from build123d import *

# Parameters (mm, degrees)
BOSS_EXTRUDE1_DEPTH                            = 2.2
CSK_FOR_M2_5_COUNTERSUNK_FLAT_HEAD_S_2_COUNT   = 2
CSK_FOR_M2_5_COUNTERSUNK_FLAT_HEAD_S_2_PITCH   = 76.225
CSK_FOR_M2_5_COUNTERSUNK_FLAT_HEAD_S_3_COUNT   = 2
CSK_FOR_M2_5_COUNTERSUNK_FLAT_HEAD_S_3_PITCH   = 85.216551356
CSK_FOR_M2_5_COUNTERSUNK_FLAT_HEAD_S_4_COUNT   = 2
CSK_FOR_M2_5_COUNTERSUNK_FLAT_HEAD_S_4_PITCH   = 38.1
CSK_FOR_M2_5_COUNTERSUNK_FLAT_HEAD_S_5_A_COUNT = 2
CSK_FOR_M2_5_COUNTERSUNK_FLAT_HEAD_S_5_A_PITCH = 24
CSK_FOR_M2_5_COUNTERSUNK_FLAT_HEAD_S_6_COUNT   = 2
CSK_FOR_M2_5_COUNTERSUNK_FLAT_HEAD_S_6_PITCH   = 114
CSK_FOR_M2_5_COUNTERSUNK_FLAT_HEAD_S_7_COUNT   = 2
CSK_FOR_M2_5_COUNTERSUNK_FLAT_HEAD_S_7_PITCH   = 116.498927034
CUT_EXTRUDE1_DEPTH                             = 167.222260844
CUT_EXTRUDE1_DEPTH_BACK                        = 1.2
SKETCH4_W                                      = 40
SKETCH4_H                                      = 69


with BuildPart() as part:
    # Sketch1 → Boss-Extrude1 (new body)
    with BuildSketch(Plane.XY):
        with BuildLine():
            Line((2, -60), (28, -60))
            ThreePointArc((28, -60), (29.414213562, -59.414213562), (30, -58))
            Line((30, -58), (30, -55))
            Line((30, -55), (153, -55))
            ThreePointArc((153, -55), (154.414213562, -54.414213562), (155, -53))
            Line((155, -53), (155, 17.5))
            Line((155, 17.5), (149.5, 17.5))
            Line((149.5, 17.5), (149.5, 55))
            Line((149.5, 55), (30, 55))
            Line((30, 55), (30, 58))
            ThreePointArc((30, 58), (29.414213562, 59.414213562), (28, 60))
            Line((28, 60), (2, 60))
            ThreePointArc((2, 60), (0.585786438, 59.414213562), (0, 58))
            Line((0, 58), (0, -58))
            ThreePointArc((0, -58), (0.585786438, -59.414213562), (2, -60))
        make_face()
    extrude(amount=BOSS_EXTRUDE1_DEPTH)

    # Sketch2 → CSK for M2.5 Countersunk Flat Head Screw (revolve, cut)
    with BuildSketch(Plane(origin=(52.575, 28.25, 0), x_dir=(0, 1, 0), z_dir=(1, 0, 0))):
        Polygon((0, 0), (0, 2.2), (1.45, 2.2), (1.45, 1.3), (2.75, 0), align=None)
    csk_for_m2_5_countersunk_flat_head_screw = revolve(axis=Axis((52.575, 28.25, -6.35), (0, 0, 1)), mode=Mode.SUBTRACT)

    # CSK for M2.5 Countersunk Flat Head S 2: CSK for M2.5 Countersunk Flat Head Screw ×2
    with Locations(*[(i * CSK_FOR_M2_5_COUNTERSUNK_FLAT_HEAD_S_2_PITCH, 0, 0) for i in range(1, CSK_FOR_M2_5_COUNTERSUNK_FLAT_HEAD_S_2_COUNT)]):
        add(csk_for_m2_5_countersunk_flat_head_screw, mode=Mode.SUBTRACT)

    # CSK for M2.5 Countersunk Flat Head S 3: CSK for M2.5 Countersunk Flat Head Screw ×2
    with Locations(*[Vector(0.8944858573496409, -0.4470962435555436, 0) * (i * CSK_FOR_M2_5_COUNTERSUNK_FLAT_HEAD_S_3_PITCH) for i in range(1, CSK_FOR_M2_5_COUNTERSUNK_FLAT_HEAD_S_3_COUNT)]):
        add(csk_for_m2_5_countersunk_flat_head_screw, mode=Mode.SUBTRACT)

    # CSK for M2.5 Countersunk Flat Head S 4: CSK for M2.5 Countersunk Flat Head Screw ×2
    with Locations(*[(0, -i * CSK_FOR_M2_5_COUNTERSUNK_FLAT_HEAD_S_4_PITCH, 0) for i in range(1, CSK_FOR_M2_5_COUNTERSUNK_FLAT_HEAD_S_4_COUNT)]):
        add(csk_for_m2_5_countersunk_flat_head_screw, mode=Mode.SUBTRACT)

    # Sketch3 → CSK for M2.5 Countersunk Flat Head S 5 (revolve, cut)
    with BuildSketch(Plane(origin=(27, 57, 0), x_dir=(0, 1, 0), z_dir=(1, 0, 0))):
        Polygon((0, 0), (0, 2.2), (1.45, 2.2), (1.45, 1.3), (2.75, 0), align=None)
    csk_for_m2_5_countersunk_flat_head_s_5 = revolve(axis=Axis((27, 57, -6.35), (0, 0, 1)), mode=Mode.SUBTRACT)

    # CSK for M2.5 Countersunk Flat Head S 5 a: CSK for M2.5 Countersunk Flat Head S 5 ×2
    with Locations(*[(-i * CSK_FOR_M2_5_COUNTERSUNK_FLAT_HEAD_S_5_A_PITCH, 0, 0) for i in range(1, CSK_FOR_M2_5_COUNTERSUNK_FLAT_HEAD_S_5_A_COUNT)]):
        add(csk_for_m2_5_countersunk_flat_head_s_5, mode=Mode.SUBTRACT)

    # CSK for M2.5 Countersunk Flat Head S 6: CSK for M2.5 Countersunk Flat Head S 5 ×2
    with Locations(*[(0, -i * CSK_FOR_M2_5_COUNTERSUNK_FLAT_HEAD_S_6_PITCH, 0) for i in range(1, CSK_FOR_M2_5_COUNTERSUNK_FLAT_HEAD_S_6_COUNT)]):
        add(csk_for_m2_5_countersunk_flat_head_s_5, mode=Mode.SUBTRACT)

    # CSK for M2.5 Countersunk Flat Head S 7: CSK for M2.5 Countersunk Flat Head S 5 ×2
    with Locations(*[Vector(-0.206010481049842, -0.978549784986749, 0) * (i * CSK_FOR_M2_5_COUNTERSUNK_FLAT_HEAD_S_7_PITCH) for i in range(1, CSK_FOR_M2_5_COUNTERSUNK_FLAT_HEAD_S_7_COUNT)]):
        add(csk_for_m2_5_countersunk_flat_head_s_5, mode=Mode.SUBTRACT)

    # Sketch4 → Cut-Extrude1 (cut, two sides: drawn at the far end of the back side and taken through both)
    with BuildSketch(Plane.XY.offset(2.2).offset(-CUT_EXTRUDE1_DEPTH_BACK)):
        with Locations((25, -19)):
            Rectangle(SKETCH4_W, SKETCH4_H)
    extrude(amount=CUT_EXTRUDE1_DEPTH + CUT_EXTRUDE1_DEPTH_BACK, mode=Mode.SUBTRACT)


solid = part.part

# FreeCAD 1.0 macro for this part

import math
import FreeCAD as App
import Part
import Sketcher

V = App.Vector
Q = App.Units.Quantity

doc = App.newDocument("Part")
body = doc.addObject("PartDesign::Body", "Body")

# Sketch on XY plane
sketch1 = doc.addObject("Sketcher::SketchObject", "Sketch")
body.addObject(sketch1)
sketch1.AttachmentSupport = (doc.XY_Plane, [""])
sketch1.MapMode = "FlatFace"
sketch1.addGeometry([
    Part.LineSegment(V(2, -60, 0), V(28, -60, 0)),  # 0
    Part.ArcOfCircle(Part.Circle(V(28, -58, 0), V(0, 0, 1), 2), math.radians(-90), math.radians(0)),  # 1
    Part.LineSegment(V(30, -58, 0), V(30, -55, 0)),  # 2
    Part.LineSegment(V(30, -55, 0), V(153, -55, 0)),  # 3
    Part.ArcOfCircle(Part.Circle(V(153, -53, 0), V(0, 0, 1), 2), math.radians(-90), math.radians(0)),  # 4
    Part.LineSegment(V(155, -53, 0), V(155, 17.5, 0)),  # 5
    Part.LineSegment(V(155, 17.5, 0), V(149.5, 17.5, 0)),  # 6
    Part.LineSegment(V(149.5, 17.5, 0), V(149.5, 55, 0)),  # 7
    Part.LineSegment(V(149.5, 55, 0), V(30, 55, 0)),  # 8
    Part.LineSegment(V(30, 55, 0), V(30, 58, 0)),  # 9
    Part.ArcOfCircle(Part.Circle(V(28, 58, 0), V(0, 0, 1), 2), math.radians(0), math.radians(90)),  # 10
    Part.LineSegment(V(28, 60, 0), V(2, 60, 0)),  # 11
    Part.ArcOfCircle(Part.Circle(V(2, 58, 0), V(0, 0, 1), 2), math.radians(90), math.radians(180)),  # 12
    Part.LineSegment(V(0, 58, 0), V(0, -58, 0)),  # 13
    Part.ArcOfCircle(Part.Circle(V(2, -58, 0), V(0, 0, 1), 2), math.radians(-180), math.radians(-90)),  # 14
], False)
sketch1.addConstraint([
    Sketcher.Constraint("Tangent", 0, 2, 1, 1),
    Sketcher.Constraint("Tangent", 1, 2, 2, 1),
    Sketcher.Constraint("Coincident", 2, 2, 3, 1),
    Sketcher.Constraint("Tangent", 3, 2, 4, 1),
    Sketcher.Constraint("Tangent", 4, 2, 5, 1),
    Sketcher.Constraint("Coincident", 5, 2, 6, 1),
    Sketcher.Constraint("Coincident", 6, 2, 7, 1),
    Sketcher.Constraint("Coincident", 7, 2, 8, 1),
    Sketcher.Constraint("Coincident", 8, 2, 9, 1),
    Sketcher.Constraint("Tangent", 9, 2, 10, 1),
    Sketcher.Constraint("Tangent", 10, 2, 11, 1),
    Sketcher.Constraint("Tangent", 11, 2, 12, 1),
    Sketcher.Constraint("Tangent", 12, 2, 13, 1),
    Sketcher.Constraint("Tangent", 13, 2, 14, 1),
    Sketcher.Constraint("Tangent", 14, 2, 0, 1),
    Sketcher.Constraint("Horizontal", 0),
    Sketcher.Constraint("Vertical", 2),
    Sketcher.Constraint("Horizontal", 3),
    Sketcher.Constraint("Vertical", 5),
    Sketcher.Constraint("Horizontal", 6),
    Sketcher.Constraint("Vertical", 7),
    Sketcher.Constraint("Horizontal", 8),
    Sketcher.Constraint("Vertical", 9),
    Sketcher.Constraint("Horizontal", 11),
    Sketcher.Constraint("Vertical", 13),
    Sketcher.Constraint("Equal", 1, 4),
    Sketcher.Constraint("Equal", 4, 10),
    Sketcher.Constraint("Equal", 10, 12),
    Sketcher.Constraint("Equal", 12, 14),
    Sketcher.Constraint("Symmetric", 12, 2, 13, 2, -1, 1),
    Sketcher.Constraint("Symmetric", 2, 2, 8, 2, -1),
    Sketcher.Constraint("Radius", 1, Q("2 mm")),
    Sketcher.Constraint("DistanceX", 0, 1, 0, 2, Q("26 mm")),
    Sketcher.Constraint("DistanceX", 3, 1, 3, 2, Q("123 mm")),
    Sketcher.Constraint("DistanceY", 2, 1, 2, 2, Q("3 mm")),
    Sketcher.Constraint("DistanceY", 13, 2, 13, 1, Q("116 mm")),
    Sketcher.Constraint("DistanceX", 6, 2, 6, 1, Q("5.5 mm")),
    Sketcher.Constraint("DistanceY", 5, 1, 5, 2, Q("70.5 mm")),
])
pad1 = doc.addObject("PartDesign::Pad", "Pad")
body.addObject(pad1)
pad1.Profile = sketch1
pad1.Length = 2.2

# Sketch on YZ plane
sketch2 = doc.addObject("Sketcher::SketchObject", "Sketch001")
body.addObject(sketch2)
sketch2.AttachmentSupport = (doc.YZ_Plane, [""])
sketch2.MapMode = "FlatFace"
sketch2.AttachmentOffset = App.Placement(V(0, 0, 52.575), App.Rotation())
sketch2.addGeometry([
    Part.LineSegment(V(28.2, 2.2, 0), V(28.2, 0, 0)),  # 0
    Part.LineSegment(V(28.2, 0, 0), V(31, 0, 0)),  # 1
    Part.LineSegment(V(31, 0, 0), V(29.7, 1.3, 0)),  # 2
    Part.LineSegment(V(29.7, 1.3, 0), V(29.7, 2.2, 0)),  # 3
    Part.LineSegment(V(29.7, 2.2, 0), V(28.2, 2.2, 0)),  # 4
], False)
sketch2.addGeometry(Part.LineSegment(V(28.2, 0, 0), V(28.2, 2.2, 0)), True)  # axis
sketch2.addConstraint([
    Sketcher.Constraint("Coincident", 0, 2, 1, 1),
    Sketcher.Constraint("Coincident", 1, 2, 2, 1),
    Sketcher.Constraint("Coincident", 2, 2, 3, 1),
    Sketcher.Constraint("Coincident", 3, 2, 4, 1),
    Sketcher.Constraint("Coincident", 4, 2, 0, 1),
    Sketcher.Constraint("Vertical", 0),
    Sketcher.Constraint("Horizontal", 1),
    Sketcher.Constraint("Vertical", 3),
    Sketcher.Constraint("Horizontal", 4),
    Sketcher.Constraint("Vertical", 5),
    Sketcher.Constraint("Coincident", 5, 1, 0, 2),
    Sketcher.Constraint("PointOnObject", 0, 2, -1),
    Sketcher.Constraint("Horizontal", 3, 2, 5, 2),
    Sketcher.Constraint("Angle", 2, Q("135 deg")),
    Sketcher.Constraint("DistanceY", 0, 2, 0, 1, Q("2.2 mm")),
    Sketcher.Constraint("DistanceY", 3, 1, 3, 2, Q("0.9 mm")),
    Sketcher.Constraint("DistanceX", -1, 1, 1, 2, Q("31 mm")),
    Sketcher.Constraint("DistanceX", 1, 1, 1, 2, Q("2.75 mm")),
])
groove = doc.addObject("PartDesign::Groove", "Groove")
body.addObject(groove)
groove.Profile = sketch2
groove.ReferenceAxis = (sketch2, ["Axis0"])
groove.Angle = 360
doc.recompute()

linearpattern = doc.addObject("PartDesign::LinearPattern", "LinearPattern")
body.addObject(linearpattern)
linearpattern.Originals = [groove]
linearpattern.Direction = (doc.X_Axis, [""])
linearpattern.Mode = "offset"
linearpattern.Offset = 76.225
linearpattern.Occurrences = 2
body.Tip = linearpattern
doc.recompute()

datumline = doc.addObject("PartDesign::Line", "DatumLine")
body.addObject(datumline)
datumline.Placement = App.Placement(V(0, 0, 0), App.Rotation(V(0, 0, 1), V(0.894485857, -0.447096244, 0)))
linearpattern2 = doc.addObject("PartDesign::LinearPattern", "LinearPattern001")
body.addObject(linearpattern2)
linearpattern2.Originals = [groove]
linearpattern2.Direction = (datumline, [""])
linearpattern2.Mode = "offset"
linearpattern2.Offset = 85.216551
linearpattern2.Occurrences = 2
body.Tip = linearpattern2
doc.recompute()

linearpattern3 = doc.addObject("PartDesign::LinearPattern", "LinearPattern002")
body.addObject(linearpattern3)
linearpattern3.Originals = [groove]
linearpattern3.Direction = (doc.Y_Axis, [""])
linearpattern3.Mode = "offset"
linearpattern3.Offset = 38.1
linearpattern3.Occurrences = 2
linearpattern3.Reversed = True
body.Tip = linearpattern3

# Sketch on YZ plane
sketch3 = doc.addObject("Sketcher::SketchObject", "Sketch002")
body.addObject(sketch3)
sketch3.AttachmentSupport = (doc.YZ_Plane, [""])
sketch3.MapMode = "FlatFace"
sketch3.AttachmentOffset = App.Placement(V(0, 0, 27), App.Rotation())
sketch3.addGeometry([
    Part.LineSegment(V(57, 2.2, 0), V(57, 0, 0)),  # 0
    Part.LineSegment(V(57, 0, 0), V(59.8, 0, 0)),  # 1
    Part.LineSegment(V(59.8, 0, 0), V(58.5, 1.3, 0)),  # 2
    Part.LineSegment(V(58.5, 1.3, 0), V(58.5, 2.2, 0)),  # 3
    Part.LineSegment(V(58.5, 2.2, 0), V(57, 2.2, 0)),  # 4
], False)
sketch3.addGeometry(Part.LineSegment(V(57, 0, 0), V(57, 2.2, 0)), True)  # axis
sketch3.addConstraint([
    Sketcher.Constraint("Coincident", 0, 2, 1, 1),
    Sketcher.Constraint("Coincident", 1, 2, 2, 1),
    Sketcher.Constraint("Coincident", 2, 2, 3, 1),
    Sketcher.Constraint("Coincident", 3, 2, 4, 1),
    Sketcher.Constraint("Coincident", 4, 2, 0, 1),
    Sketcher.Constraint("Vertical", 0),
    Sketcher.Constraint("Horizontal", 1),
    Sketcher.Constraint("Vertical", 3),
    Sketcher.Constraint("Horizontal", 4),
    Sketcher.Constraint("Vertical", 5),
    Sketcher.Constraint("Coincident", 5, 1, 0, 2),
    Sketcher.Constraint("PointOnObject", 0, 2, -1),
    Sketcher.Constraint("Horizontal", 3, 2, 5, 2),
    Sketcher.Constraint("Angle", 2, Q("135 deg")),
    Sketcher.Constraint("DistanceY", 0, 2, 0, 1, Q("2.2 mm")),
    Sketcher.Constraint("DistanceY", 3, 1, 3, 2, Q("0.9 mm")),
    Sketcher.Constraint("DistanceX", -1, 1, 0, 2, Q("57 mm")),
    Sketcher.Constraint("DistanceX", 1, 1, 1, 2, Q("2.75 mm")),
])
groove2 = doc.addObject("PartDesign::Groove", "Groove001")
body.addObject(groove2)
groove2.Profile = sketch3
groove2.ReferenceAxis = (sketch3, ["Axis0"])
groove2.Angle = 360
doc.recompute()

linearpattern4 = doc.addObject("PartDesign::LinearPattern", "LinearPattern003")
body.addObject(linearpattern4)
linearpattern4.Originals = [groove2]
linearpattern4.Direction = (doc.X_Axis, [""])
linearpattern4.Mode = "offset"
linearpattern4.Offset = 24
linearpattern4.Occurrences = 2
linearpattern4.Reversed = True
body.Tip = linearpattern4
doc.recompute()

linearpattern5 = doc.addObject("PartDesign::LinearPattern", "LinearPattern004")
body.addObject(linearpattern5)
linearpattern5.Originals = [groove2]
linearpattern5.Direction = (doc.Y_Axis, [""])
linearpattern5.Mode = "offset"
linearpattern5.Offset = 114
linearpattern5.Occurrences = 2
linearpattern5.Reversed = True
body.Tip = linearpattern5
doc.recompute()

datumline2 = doc.addObject("PartDesign::Line", "DatumLine001")
body.addObject(datumline2)
datumline2.Placement = App.Placement(V(0, 0, 0), App.Rotation(V(0, 0, 1), V(-0.206010481, -0.978549785, 0)))
linearpattern6 = doc.addObject("PartDesign::LinearPattern", "LinearPattern005")
body.addObject(linearpattern6)
linearpattern6.Originals = [groove2]
linearpattern6.Direction = (datumline2, [""])
linearpattern6.Mode = "offset"
linearpattern6.Offset = 116.498927
linearpattern6.Occurrences = 2
body.Tip = linearpattern6

# Sketch on XY plane
sketch4 = doc.addObject("Sketcher::SketchObject", "Sketch003")
body.addObject(sketch4)
sketch4.AttachmentSupport = (doc.XY_Plane, [""])
sketch4.MapMode = "FlatFace"
sketch4.AttachmentOffset = App.Placement(V(0, 0, 2.2), App.Rotation())
sketch4.addGeometry([
    Part.LineSegment(V(5, 16, 0), V(5, -54, 0)),
    Part.LineSegment(V(5, -54, 0), V(45, -54, 0)),
    Part.LineSegment(V(45, -54, 0), V(45, 16, 0)),
    Part.LineSegment(V(45, 16, 0), V(5, 16, 0)),
], False)
sketch4.addConstraint([
    Sketcher.Constraint("Coincident", 0, 2, 1, 1),
    Sketcher.Constraint("Coincident", 1, 2, 2, 1),
    Sketcher.Constraint("Coincident", 2, 2, 3, 1),
    Sketcher.Constraint("Coincident", 3, 2, 0, 1),
    Sketcher.Constraint("Vertical", 0),
    Sketcher.Constraint("Horizontal", 1),
    Sketcher.Constraint("Vertical", 2),
    Sketcher.Constraint("Horizontal", 3),
    Sketcher.Constraint("DistanceX", 1, 1, 1, 2, Q("40 mm")),
    Sketcher.Constraint("DistanceY", 0, 2, 0, 1, Q("69 mm")),
    Sketcher.Constraint("DistanceX", -1, 1, 0, 2, Q("5 mm")),
    Sketcher.Constraint("DistanceY", 0, 2, -1, 1, Q("53.5 mm")),
])
pocket1 = doc.addObject("PartDesign::Pocket", "Pocket")
body.addObject(pocket1)
pocket1.Profile = sketch4
pocket1.Type = "TwoLengths"
pocket1.Length = 167.222261
pocket1.Length2 = 1.2
pocket1.Reversed = True

doc.recompute()
